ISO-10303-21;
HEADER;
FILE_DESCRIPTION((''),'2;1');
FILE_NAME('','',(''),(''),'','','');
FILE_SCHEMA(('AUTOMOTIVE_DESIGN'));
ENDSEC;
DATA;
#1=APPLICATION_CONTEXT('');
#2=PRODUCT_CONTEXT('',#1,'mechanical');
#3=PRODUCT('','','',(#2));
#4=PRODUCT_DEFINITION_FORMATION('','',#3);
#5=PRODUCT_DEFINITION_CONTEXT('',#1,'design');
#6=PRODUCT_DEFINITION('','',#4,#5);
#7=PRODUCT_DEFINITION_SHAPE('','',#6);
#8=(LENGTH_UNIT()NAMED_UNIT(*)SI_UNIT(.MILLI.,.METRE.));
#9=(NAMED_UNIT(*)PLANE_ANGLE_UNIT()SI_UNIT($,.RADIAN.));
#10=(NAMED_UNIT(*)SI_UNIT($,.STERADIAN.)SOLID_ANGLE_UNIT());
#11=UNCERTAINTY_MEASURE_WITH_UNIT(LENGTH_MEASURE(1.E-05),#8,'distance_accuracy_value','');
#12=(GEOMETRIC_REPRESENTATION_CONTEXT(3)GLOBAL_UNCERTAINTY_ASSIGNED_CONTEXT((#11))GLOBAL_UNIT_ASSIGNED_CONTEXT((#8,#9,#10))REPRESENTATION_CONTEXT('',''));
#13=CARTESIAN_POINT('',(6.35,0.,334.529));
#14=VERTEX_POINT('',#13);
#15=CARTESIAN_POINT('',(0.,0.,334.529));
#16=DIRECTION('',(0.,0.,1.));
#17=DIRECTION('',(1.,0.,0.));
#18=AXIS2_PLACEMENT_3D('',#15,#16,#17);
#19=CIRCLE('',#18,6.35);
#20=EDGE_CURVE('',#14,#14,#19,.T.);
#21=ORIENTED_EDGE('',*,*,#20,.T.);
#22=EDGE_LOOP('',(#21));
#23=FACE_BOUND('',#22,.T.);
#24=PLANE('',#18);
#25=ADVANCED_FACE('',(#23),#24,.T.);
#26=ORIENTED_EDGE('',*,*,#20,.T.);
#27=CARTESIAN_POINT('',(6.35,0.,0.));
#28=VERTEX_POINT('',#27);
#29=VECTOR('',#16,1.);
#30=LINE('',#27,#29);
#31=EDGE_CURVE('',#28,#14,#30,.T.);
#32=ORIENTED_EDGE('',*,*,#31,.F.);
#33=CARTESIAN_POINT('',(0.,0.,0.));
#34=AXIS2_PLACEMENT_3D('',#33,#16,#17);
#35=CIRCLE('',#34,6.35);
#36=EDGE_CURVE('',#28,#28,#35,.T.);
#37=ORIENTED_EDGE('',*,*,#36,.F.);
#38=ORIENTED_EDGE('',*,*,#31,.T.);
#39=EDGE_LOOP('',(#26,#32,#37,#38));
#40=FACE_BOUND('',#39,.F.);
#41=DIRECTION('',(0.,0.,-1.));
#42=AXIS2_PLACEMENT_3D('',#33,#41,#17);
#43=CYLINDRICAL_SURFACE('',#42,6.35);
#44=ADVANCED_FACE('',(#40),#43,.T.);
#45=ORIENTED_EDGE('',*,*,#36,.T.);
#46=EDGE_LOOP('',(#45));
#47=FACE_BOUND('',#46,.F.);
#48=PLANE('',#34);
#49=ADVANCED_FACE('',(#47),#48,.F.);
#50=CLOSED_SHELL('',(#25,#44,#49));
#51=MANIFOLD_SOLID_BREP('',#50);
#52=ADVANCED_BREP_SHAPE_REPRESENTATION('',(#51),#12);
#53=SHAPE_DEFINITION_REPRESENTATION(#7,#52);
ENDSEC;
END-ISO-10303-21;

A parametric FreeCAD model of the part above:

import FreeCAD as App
import Part
import Sketcher
from FreeCAD import Vector
Q = App.Units.Quantity

doc = App.newDocument("Part")
body = doc.addObject("PartDesign::Body", "Body")

# Sketch on XY plane
sketch1 = body.newObject("Sketcher::SketchObject", "Sketch")
sketch1.AttachmentSupport = (doc.getObject("XY_Plane"), [""])
sketch1.MapMode = "FlatFace"
sketch1.addGeometry(Part.Circle(Vector(0, 0, 0), Vector(0, 0, 1), 6), False)
sketch1.addConstraint(Sketcher.Constraint("Coincident", 0, 3, -1, 1))
sketch1.addConstraint(Sketcher.Constraint("Diameter", 0, Q("0.5 in")))
pad1 = body.newObject("PartDesign::Pad", "Pad")
pad1.Profile = sketch1
pad1.Length = 334.529

doc.recompute()
